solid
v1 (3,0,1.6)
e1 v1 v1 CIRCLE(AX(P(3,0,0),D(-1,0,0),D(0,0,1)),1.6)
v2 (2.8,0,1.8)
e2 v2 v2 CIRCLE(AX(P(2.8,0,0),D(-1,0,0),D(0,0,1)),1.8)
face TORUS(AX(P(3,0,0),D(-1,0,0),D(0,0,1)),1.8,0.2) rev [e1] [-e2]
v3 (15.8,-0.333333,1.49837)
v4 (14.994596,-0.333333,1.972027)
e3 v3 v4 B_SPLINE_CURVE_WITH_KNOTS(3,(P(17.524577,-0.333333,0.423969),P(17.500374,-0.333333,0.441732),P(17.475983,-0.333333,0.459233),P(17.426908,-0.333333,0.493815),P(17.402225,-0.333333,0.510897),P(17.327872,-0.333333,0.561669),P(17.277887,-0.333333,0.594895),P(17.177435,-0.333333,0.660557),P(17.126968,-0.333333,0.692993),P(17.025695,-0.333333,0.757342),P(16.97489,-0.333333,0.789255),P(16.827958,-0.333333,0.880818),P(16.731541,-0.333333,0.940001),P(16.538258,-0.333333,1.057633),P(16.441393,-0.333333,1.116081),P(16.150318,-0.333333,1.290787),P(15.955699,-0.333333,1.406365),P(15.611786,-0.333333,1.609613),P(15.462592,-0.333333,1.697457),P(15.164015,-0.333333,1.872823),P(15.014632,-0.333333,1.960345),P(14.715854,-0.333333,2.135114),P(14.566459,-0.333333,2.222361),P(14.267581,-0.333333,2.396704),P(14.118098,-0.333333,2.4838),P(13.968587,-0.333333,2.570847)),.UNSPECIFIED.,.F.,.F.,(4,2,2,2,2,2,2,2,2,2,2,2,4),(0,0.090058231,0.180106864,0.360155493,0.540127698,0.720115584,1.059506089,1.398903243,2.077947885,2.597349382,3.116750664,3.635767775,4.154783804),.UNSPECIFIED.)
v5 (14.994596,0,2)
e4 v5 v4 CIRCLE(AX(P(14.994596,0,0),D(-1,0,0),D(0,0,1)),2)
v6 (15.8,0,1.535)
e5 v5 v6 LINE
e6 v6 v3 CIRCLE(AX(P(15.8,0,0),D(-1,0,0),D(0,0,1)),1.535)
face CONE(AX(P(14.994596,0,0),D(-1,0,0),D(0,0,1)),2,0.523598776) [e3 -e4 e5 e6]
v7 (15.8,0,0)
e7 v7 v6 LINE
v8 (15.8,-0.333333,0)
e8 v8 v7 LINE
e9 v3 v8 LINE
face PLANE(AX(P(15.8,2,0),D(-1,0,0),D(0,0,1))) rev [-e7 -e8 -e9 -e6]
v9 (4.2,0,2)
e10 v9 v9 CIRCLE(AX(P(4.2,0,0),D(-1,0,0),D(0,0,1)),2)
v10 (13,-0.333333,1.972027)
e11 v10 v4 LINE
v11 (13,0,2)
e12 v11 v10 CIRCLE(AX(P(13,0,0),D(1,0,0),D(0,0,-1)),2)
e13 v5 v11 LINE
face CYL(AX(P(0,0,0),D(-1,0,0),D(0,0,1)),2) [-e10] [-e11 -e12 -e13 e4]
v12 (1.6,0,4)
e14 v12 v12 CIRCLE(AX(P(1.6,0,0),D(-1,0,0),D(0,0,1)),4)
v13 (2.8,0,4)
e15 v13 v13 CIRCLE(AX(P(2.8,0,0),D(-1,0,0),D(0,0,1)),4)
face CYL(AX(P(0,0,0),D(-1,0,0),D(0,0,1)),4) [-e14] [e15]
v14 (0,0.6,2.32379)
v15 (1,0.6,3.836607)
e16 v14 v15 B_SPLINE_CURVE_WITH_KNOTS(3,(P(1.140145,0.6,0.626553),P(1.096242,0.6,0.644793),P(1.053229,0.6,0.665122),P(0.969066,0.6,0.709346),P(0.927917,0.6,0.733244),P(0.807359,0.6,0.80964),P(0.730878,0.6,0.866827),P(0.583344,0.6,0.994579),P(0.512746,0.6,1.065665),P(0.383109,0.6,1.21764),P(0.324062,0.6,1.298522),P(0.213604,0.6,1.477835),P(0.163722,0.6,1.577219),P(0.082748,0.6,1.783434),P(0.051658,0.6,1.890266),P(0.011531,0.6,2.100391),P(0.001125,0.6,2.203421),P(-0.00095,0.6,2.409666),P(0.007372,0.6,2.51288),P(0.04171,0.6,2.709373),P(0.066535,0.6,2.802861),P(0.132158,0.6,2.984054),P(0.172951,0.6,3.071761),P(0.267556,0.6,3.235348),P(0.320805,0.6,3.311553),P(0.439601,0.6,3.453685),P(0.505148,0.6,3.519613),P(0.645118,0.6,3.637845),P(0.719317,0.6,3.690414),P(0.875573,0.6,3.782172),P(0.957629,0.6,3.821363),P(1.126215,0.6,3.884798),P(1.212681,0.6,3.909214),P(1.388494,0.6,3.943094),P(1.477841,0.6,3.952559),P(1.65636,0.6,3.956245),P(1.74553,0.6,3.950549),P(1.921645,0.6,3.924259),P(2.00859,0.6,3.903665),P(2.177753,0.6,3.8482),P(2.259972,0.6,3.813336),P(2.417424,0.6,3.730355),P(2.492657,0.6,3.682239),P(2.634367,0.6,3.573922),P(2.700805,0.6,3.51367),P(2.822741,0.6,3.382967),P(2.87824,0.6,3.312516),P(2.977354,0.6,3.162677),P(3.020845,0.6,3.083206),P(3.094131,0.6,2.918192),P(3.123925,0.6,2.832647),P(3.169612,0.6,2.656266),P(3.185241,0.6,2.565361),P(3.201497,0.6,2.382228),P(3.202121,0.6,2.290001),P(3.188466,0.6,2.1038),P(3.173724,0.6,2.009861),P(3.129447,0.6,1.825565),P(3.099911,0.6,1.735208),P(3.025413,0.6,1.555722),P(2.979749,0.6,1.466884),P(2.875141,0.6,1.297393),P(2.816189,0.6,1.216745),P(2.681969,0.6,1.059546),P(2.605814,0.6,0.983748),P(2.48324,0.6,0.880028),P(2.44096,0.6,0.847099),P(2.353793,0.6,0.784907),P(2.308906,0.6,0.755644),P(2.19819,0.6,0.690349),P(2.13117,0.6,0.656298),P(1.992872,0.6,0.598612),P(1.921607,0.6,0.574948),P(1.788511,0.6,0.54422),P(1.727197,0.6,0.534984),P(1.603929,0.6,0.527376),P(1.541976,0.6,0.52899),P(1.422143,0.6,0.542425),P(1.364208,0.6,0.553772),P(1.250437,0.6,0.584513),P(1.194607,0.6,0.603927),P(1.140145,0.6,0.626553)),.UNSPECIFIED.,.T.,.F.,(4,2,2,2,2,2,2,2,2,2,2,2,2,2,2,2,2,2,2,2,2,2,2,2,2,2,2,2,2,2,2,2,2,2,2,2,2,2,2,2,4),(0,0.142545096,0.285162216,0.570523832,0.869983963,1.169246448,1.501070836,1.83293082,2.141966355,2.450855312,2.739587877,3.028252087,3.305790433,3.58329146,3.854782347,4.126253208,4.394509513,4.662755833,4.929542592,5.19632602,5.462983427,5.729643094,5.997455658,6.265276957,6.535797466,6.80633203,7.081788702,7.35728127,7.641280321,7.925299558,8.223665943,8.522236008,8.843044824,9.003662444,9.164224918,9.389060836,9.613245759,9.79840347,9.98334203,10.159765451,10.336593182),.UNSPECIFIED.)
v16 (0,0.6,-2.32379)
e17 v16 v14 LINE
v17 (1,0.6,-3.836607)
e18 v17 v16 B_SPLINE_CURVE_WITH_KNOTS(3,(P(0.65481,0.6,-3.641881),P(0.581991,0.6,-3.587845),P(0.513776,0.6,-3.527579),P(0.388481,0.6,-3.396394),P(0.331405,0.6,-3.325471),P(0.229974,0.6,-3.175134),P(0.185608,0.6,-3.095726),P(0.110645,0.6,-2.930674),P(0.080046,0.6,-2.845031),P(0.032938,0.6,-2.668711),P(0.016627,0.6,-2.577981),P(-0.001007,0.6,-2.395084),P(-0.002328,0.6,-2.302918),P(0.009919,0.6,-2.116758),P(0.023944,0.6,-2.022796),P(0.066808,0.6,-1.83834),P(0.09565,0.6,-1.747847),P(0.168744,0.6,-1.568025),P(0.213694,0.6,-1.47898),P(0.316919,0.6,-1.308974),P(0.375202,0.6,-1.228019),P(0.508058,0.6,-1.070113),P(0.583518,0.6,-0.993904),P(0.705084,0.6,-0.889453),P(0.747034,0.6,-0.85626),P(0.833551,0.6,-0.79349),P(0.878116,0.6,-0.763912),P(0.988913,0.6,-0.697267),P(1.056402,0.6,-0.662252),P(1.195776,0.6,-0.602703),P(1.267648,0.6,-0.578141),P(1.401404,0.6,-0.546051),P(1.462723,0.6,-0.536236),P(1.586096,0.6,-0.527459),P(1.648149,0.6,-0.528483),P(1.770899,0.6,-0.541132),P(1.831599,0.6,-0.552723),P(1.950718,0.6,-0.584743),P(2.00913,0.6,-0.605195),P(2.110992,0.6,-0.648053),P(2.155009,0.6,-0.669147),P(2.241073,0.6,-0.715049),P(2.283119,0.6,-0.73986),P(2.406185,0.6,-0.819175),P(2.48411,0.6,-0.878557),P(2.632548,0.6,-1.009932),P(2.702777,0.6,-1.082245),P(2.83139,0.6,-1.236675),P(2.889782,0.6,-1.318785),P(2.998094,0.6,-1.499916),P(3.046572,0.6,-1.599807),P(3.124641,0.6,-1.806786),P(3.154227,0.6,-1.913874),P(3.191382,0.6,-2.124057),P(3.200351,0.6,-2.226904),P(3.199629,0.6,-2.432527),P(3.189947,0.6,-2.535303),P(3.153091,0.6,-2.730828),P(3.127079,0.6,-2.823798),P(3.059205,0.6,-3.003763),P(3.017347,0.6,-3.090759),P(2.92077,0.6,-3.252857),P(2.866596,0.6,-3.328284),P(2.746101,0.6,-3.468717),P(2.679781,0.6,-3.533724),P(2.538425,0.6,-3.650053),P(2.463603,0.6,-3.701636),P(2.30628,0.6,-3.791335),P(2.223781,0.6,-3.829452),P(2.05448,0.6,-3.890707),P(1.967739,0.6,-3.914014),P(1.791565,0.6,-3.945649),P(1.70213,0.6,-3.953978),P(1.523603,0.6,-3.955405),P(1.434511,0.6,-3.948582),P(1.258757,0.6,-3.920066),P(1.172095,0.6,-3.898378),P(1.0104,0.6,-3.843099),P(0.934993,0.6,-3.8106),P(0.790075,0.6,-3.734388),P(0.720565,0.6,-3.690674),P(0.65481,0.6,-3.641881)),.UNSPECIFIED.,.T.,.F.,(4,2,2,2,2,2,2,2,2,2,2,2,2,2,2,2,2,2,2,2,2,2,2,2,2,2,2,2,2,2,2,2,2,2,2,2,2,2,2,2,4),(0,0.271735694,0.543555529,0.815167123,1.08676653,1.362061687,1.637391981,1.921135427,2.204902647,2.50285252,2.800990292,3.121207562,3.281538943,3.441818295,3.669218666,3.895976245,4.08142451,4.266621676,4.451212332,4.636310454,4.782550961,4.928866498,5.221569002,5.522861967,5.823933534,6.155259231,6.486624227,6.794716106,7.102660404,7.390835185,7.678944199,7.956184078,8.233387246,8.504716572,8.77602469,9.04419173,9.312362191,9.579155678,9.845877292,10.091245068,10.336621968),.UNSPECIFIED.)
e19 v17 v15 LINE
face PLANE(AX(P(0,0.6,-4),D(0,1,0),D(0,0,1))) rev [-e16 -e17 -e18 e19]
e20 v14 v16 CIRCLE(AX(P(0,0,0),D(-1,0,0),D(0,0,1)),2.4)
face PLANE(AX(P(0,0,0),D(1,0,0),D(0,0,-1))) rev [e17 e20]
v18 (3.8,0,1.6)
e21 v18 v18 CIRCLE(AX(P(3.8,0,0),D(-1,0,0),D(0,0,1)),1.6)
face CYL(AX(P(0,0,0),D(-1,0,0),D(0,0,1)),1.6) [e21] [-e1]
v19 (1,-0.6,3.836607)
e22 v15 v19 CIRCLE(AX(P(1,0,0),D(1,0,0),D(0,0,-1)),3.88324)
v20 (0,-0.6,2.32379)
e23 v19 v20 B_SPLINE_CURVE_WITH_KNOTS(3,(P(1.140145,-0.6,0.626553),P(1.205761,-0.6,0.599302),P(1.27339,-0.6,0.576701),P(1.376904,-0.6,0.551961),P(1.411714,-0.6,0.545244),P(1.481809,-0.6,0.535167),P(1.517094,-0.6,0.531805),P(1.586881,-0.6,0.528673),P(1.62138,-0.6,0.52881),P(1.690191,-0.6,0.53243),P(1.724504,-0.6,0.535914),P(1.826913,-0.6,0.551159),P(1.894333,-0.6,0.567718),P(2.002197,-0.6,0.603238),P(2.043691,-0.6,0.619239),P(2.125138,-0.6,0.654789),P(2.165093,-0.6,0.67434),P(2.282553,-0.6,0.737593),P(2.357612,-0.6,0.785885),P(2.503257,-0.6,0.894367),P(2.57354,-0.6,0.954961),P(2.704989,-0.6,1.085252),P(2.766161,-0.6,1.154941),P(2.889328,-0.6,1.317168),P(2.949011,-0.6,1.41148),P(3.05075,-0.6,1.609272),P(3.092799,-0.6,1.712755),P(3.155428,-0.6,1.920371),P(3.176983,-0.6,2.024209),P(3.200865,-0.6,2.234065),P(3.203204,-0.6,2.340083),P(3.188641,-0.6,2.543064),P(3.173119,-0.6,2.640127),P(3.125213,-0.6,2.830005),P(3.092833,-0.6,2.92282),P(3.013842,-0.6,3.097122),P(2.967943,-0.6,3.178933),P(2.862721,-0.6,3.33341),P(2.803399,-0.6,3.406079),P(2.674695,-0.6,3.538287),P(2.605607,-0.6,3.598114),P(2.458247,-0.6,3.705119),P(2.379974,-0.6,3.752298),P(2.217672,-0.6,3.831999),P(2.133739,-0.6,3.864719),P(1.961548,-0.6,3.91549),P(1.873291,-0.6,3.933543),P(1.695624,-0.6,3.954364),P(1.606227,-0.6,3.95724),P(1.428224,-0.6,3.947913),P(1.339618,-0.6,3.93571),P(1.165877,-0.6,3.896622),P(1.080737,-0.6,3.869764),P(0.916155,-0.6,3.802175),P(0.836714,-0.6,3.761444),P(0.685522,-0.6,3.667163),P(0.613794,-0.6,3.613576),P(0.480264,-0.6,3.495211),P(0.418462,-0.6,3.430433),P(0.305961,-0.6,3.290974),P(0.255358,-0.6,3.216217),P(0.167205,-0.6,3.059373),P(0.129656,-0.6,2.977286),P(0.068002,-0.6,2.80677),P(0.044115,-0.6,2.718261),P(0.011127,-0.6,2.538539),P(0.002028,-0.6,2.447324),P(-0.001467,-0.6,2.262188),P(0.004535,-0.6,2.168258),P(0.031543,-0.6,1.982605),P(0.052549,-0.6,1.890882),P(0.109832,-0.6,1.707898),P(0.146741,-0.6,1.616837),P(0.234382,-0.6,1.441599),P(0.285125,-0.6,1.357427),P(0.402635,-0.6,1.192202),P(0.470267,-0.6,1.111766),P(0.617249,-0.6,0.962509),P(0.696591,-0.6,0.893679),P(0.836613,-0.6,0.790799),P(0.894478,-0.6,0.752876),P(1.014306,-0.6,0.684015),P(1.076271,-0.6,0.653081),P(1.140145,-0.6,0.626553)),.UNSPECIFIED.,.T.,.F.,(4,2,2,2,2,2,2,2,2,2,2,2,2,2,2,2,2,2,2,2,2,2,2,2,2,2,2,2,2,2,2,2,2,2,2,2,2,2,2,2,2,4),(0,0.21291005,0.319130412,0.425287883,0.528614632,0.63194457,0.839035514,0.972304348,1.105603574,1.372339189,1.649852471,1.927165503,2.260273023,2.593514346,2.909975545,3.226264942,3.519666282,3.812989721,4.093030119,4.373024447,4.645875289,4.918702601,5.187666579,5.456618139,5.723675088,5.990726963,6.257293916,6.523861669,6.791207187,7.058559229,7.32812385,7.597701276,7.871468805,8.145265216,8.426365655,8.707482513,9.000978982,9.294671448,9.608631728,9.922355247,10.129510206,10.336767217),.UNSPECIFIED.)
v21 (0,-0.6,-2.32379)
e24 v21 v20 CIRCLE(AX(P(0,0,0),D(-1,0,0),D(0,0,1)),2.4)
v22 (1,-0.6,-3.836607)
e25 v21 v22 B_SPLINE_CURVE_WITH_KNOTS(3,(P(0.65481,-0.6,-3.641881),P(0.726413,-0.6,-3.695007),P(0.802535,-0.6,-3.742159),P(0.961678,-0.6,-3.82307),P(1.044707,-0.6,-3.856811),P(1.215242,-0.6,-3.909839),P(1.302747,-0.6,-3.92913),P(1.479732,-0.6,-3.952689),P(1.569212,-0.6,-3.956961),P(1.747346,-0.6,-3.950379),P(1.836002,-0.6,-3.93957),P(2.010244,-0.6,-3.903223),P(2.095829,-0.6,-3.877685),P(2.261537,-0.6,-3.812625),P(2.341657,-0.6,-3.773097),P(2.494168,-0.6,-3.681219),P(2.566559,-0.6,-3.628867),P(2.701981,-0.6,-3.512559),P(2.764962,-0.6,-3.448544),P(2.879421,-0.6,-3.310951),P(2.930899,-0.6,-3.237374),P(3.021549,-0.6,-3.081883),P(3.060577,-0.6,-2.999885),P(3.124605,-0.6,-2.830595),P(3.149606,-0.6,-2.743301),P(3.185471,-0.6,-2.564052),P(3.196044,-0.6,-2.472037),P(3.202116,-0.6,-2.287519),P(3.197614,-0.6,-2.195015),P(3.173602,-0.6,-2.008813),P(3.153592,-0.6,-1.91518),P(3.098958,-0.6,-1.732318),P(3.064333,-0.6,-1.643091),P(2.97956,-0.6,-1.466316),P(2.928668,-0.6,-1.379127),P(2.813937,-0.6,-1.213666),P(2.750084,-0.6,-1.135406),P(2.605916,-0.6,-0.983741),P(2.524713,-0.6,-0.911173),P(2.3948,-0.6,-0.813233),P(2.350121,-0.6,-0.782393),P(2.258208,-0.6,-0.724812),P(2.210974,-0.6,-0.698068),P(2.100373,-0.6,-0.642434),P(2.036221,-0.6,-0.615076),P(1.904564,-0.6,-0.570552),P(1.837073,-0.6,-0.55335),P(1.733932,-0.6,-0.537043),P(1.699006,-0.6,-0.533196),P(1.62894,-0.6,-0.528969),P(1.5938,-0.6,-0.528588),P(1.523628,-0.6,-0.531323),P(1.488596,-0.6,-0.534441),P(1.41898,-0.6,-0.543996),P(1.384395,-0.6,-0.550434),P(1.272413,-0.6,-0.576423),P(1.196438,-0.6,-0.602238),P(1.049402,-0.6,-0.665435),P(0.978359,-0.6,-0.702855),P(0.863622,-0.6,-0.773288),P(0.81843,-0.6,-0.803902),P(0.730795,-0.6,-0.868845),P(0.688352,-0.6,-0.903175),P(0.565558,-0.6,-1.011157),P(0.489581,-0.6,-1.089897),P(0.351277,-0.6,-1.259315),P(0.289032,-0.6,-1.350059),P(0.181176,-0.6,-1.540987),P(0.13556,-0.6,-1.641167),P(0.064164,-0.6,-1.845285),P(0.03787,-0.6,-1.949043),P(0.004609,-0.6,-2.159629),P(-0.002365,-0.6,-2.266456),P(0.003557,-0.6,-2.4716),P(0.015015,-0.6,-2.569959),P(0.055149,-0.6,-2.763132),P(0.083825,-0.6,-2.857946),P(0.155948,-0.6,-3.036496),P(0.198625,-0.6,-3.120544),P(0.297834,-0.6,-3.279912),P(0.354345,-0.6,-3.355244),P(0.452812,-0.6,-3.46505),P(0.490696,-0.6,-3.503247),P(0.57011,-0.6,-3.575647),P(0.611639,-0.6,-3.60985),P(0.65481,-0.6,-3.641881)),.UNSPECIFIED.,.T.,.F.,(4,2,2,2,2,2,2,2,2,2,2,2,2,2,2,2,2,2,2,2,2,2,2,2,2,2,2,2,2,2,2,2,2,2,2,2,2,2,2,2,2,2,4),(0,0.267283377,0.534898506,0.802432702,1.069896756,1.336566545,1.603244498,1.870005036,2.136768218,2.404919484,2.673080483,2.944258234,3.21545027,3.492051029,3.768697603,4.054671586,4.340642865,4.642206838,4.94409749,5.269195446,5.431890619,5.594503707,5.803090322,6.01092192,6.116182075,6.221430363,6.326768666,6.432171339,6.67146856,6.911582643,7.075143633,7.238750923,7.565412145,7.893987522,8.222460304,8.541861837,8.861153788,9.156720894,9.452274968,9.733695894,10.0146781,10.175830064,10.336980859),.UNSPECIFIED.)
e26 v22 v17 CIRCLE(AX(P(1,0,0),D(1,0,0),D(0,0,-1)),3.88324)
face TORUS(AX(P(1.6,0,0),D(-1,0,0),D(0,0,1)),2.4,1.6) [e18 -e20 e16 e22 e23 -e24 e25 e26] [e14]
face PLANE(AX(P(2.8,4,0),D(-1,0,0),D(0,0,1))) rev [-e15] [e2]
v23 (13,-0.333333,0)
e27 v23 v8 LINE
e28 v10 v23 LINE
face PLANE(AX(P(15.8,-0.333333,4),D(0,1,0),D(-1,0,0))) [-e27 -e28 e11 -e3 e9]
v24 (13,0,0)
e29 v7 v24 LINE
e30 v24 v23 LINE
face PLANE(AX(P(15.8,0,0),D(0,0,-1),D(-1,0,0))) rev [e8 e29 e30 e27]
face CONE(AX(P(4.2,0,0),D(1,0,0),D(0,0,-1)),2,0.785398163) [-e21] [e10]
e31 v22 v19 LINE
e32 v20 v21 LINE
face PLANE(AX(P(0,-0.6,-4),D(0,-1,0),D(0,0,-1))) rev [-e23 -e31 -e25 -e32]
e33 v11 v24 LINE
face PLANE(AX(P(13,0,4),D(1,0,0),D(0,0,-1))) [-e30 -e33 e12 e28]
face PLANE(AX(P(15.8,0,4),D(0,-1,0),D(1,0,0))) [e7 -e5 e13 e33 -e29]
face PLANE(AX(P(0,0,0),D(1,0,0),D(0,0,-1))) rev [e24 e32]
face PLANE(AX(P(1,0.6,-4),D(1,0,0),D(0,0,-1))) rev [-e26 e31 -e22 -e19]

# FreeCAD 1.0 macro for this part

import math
import FreeCAD as App
import Part
import Sketcher
from FreeCAD import Vector
Q = App.Units.Quantity


def add_polygon(sketch, points):
    """Adds a closed chain of lines whose ends are joined by coincident constraints."""
    first, n = sketch.GeometryCount, len(points)
    for a, b in zip(points, points[1:] + points[:1]):
        sketch.addGeometry(Part.LineSegment(App.Vector(*a, 0), App.Vector(*b, 0)), False)
    for i in range(n):
        sketch.addConstraint(Sketcher.Constraint("Coincident", first + i, 2, first + (i + 1) % n, 1))

doc = App.newDocument("Part")
params = doc.addObject("Spreadsheet::Sheet", "Params")
for row, (alias, value) in enumerate([
    ("sketch1_radius", "0.2 mm"),
    ("sketch1_radius2", "1.6 mm"),
    ("sketch1_height", "2 mm"),
    ("sketch1_width", "15.8 mm"),
    ("sketch1_width2", "11.6 mm"),
    ("revolution_angle", "360 deg"),
    ("sketch2_width", "1 mm"),
    ("sketch2_height", "1.2 mm"),
    ("sketch3_length", "0.93 mm"),
    ("groove_angle", "360 deg"),
    ("sketch4_width", "2.8 mm"),
], start=1):
    params.set(f"A{row}", alias)
    params.set(f"B{row}", "=" + value)
    params.setAlias(f"B{row}", alias)

body = doc.addObject("PartDesign::Body", "Body")

sketch1 = doc.addObject("Sketcher::SketchObject", "Sketch")
body.addObject(sketch1)
sketch1.AttachmentSupport = (doc.XY_Plane, [""])
sketch1.MapMode = "FlatFace"
sketch1.addGeometry([
    Part.LineSegment(Vector(0, 2.4, 0), Vector(0, 0, 0)),
    Part.LineSegment(Vector(0, 0, 0), Vector(15.8, 0, 0)),
    Part.LineSegment(Vector(15.8, 0, 0), Vector(15.8, 2, 0)),
    Part.LineSegment(Vector(15.8, 2, 0), Vector(4.2, 2, 0)),
    Part.LineSegment(Vector(4.2, 2, 0), Vector(3.8, 1.6, 0)),
    Part.LineSegment(Vector(3.8, 1.6, 0), Vector(3, 1.6, 0)),
    Part.ArcOfCircle(Part.Circle(Vector(3, 1.8, 0), Vector(0, 0, 1), 0.2), math.radians(-180), math.radians(-90)),
    Part.LineSegment(Vector(2.8, 1.8, 0), Vector(2.8, 4, 0)),
    Part.LineSegment(Vector(2.8, 4, 0), Vector(1.6, 4, 0)),
    Part.ArcOfCircle(Part.Circle(Vector(1.6, 2.4, 0), Vector(0, 0, 1), 1.6), math.radians(90), math.radians(180)),
], False)
sketch1.addConstraint([
    Sketcher.Constraint("Coincident", 0, 2, 1, 1),
    Sketcher.Constraint("Coincident", 1, 2, 2, 1),
    Sketcher.Constraint("Coincident", 2, 2, 3, 1),
    Sketcher.Constraint("Coincident", 3, 2, 4, 1),
    Sketcher.Constraint("Coincident", 4, 2, 5, 1),
    Sketcher.Constraint("Tangent", 5, 2, 6, 2),
    Sketcher.Constraint("Tangent", 6, 1, 7, 1),
    Sketcher.Constraint("Coincident", 7, 2, 8, 1),
    Sketcher.Constraint("Tangent", 8, 2, 9, 1),
    Sketcher.Constraint("Tangent", 9, 2, 0, 1),
    Sketcher.Constraint("Vertical", 0),
    Sketcher.Constraint("Horizontal", 1),
    Sketcher.Constraint("Vertical", 2),
    Sketcher.Constraint("Horizontal", 3),
    Sketcher.Constraint("Horizontal", 5),
    Sketcher.Constraint("Vertical", 7),
    Sketcher.Constraint("Horizontal", 8),
    Sketcher.Constraint("Coincident", 0, 2, -1, 1),
    Sketcher.Constraint("Radius", 6, 0.2),
    Sketcher.Constraint("Radius", 9, 1.6),
    Sketcher.Constraint("DistanceY", 2, 1, 2, 2, 2.0),
    Sketcher.Constraint("Angle", 4, Q("-135 deg")),
    Sketcher.Constraint("DistanceX", 1, 1, 1, 2, 15.8),
    Sketcher.Constraint("DistanceX", 3, 2, 3, 1, 11.6),
    Sketcher.Constraint("DistanceX", 5, 2, 5, 1, 0.8),
    Sketcher.Constraint("DistanceX", 8, 2, 8, 1, 1.2),
    Sketcher.Constraint("DistanceY", 0, 2, 0, 1, 2.4),
])
sketch1.setExpression("Constraints[18]", "Params.sketch1_radius")
sketch1.setExpression("Constraints[19]", "Params.sketch1_radius2")
sketch1.setExpression("Constraints[20]", "Params.sketch1_height")
sketch1.setExpression("Constraints[22]", "Params.sketch1_width")
sketch1.setExpression("Constraints[23]", "Params.sketch1_width2")
revolution = doc.addObject("PartDesign::Revolution", "Revolution")
body.addObject(revolution)
revolution.Profile = sketch1
revolution.ReferenceAxis = (sketch1, ["H_Axis"])
revolution.setExpression("Angle", "Params.revolution_angle")

sketch2 = doc.addObject("Sketcher::SketchObject", "Sketch001")
body.addObject(sketch2)
sketch2.AttachmentSupport = (doc.XY_Plane, [""])
sketch2.MapMode = "FlatFace"
add_polygon(sketch2, [(0, 0.6), (0, -0.6), (1, -0.6), (1, 0.6)])
sketch2.addConstraint([
    Sketcher.Constraint("Vertical", 0),
    Sketcher.Constraint("Horizontal", 1),
    Sketcher.Constraint("Vertical", 2),
    Sketcher.Constraint("Horizontal", 3),
    Sketcher.Constraint("Symmetric", 0, 2, 3, 2, -1, 1),
    Sketcher.Constraint("DistanceX", 1, 1, 1, 2, 1.0),
    Sketcher.Constraint("DistanceY", 0, 2, 0, 1, 1.2),
])
sketch2.setExpression("Constraints[9]", "Params.sketch2_width")
sketch2.setExpression("Constraints[10]", "Params.sketch2_height")
pocket1 = doc.addObject("PartDesign::Pocket", "Pocket")
body.addObject(pocket1)
pocket1.Profile = sketch2
pocket1.Type = "ThroughAll"
pocket1.Midplane = True

sketch3 = doc.addObject("Sketcher::SketchObject", "Sketch002")
body.addObject(sketch3)
sketch3.AttachmentSupport = (doc.XY_Plane, [""])
sketch3.MapMode = "FlatFace"
add_polygon(sketch3, [(15.8, 0), (16.3, 0), (16.3, 2.5), (15, 2.5), (15, 2), (15.8, 1.5)])
sketch3.addConstraint([
    Sketcher.Constraint("Horizontal", 0),
    Sketcher.Constraint("Vertical", 1),
    Sketcher.Constraint("Horizontal", 2),
    Sketcher.Constraint("Vertical", 3),
    Sketcher.Constraint("Vertical", 5),
    Sketcher.Constraint("PointOnObject", 0, 2, -1),
    Sketcher.Constraint("Equal", 0, 3),
    Sketcher.Constraint("Angle", 4, Q("-30 deg")),
    Sketcher.Constraint("DistanceY", -1, 1, 3, 2, 2.0),
    Sketcher.Constraint("DistanceX", -1, 1, 4, 2, 15.8),
    Sketcher.Constraint("Distance", 4, 0.93),
    Sketcher.Constraint("DistanceX", 0, 1, 0, 2, 0.508),
])
sketch3.setExpression("Constraints[16]", "Params.sketch3_length")
groove = doc.addObject("PartDesign::Groove", "Groove")
body.addObject(groove)
groove.Profile = sketch3
groove.ReferenceAxis = (sketch3, ["H_Axis"])
groove.setExpression("Angle", "Params.groove_angle")

sketch4 = doc.addObject("Sketcher::SketchObject", "Sketch003")
body.addObject(sketch4)
sketch4.AttachmentSupport = (doc.XY_Plane, [""])
sketch4.MapMode = "FlatFace"
add_polygon(sketch4, [(13, 0), (13, -0.33), (15.8, -0.33), (15.8, 0)])
sketch4.addConstraint([
    Sketcher.Constraint("Vertical", 0),
    Sketcher.Constraint("Horizontal", 1),
    Sketcher.Constraint("Vertical", 2),
    Sketcher.Constraint("Horizontal", 3),
    Sketcher.Constraint("PointOnObject", 2, 2, -1),
    Sketcher.Constraint("DistanceX", 1, 1, 1, 2, 2.8),
    Sketcher.Constraint("DistanceX", -1, 1, 0, 2, 13.0),
    Sketcher.Constraint("DistanceY", 0, 2, 0, 1, 0.333333),
])
sketch4.setExpression("Constraints[9]", "Params.sketch4_width")
pocket2 = doc.addObject("PartDesign::Pocket", "Pocket001")
body.addObject(pocket2)
pocket2.Profile = sketch4
pocket2.Type = "ThroughAll"
pocket2.Reversed = True

doc.recompute()
